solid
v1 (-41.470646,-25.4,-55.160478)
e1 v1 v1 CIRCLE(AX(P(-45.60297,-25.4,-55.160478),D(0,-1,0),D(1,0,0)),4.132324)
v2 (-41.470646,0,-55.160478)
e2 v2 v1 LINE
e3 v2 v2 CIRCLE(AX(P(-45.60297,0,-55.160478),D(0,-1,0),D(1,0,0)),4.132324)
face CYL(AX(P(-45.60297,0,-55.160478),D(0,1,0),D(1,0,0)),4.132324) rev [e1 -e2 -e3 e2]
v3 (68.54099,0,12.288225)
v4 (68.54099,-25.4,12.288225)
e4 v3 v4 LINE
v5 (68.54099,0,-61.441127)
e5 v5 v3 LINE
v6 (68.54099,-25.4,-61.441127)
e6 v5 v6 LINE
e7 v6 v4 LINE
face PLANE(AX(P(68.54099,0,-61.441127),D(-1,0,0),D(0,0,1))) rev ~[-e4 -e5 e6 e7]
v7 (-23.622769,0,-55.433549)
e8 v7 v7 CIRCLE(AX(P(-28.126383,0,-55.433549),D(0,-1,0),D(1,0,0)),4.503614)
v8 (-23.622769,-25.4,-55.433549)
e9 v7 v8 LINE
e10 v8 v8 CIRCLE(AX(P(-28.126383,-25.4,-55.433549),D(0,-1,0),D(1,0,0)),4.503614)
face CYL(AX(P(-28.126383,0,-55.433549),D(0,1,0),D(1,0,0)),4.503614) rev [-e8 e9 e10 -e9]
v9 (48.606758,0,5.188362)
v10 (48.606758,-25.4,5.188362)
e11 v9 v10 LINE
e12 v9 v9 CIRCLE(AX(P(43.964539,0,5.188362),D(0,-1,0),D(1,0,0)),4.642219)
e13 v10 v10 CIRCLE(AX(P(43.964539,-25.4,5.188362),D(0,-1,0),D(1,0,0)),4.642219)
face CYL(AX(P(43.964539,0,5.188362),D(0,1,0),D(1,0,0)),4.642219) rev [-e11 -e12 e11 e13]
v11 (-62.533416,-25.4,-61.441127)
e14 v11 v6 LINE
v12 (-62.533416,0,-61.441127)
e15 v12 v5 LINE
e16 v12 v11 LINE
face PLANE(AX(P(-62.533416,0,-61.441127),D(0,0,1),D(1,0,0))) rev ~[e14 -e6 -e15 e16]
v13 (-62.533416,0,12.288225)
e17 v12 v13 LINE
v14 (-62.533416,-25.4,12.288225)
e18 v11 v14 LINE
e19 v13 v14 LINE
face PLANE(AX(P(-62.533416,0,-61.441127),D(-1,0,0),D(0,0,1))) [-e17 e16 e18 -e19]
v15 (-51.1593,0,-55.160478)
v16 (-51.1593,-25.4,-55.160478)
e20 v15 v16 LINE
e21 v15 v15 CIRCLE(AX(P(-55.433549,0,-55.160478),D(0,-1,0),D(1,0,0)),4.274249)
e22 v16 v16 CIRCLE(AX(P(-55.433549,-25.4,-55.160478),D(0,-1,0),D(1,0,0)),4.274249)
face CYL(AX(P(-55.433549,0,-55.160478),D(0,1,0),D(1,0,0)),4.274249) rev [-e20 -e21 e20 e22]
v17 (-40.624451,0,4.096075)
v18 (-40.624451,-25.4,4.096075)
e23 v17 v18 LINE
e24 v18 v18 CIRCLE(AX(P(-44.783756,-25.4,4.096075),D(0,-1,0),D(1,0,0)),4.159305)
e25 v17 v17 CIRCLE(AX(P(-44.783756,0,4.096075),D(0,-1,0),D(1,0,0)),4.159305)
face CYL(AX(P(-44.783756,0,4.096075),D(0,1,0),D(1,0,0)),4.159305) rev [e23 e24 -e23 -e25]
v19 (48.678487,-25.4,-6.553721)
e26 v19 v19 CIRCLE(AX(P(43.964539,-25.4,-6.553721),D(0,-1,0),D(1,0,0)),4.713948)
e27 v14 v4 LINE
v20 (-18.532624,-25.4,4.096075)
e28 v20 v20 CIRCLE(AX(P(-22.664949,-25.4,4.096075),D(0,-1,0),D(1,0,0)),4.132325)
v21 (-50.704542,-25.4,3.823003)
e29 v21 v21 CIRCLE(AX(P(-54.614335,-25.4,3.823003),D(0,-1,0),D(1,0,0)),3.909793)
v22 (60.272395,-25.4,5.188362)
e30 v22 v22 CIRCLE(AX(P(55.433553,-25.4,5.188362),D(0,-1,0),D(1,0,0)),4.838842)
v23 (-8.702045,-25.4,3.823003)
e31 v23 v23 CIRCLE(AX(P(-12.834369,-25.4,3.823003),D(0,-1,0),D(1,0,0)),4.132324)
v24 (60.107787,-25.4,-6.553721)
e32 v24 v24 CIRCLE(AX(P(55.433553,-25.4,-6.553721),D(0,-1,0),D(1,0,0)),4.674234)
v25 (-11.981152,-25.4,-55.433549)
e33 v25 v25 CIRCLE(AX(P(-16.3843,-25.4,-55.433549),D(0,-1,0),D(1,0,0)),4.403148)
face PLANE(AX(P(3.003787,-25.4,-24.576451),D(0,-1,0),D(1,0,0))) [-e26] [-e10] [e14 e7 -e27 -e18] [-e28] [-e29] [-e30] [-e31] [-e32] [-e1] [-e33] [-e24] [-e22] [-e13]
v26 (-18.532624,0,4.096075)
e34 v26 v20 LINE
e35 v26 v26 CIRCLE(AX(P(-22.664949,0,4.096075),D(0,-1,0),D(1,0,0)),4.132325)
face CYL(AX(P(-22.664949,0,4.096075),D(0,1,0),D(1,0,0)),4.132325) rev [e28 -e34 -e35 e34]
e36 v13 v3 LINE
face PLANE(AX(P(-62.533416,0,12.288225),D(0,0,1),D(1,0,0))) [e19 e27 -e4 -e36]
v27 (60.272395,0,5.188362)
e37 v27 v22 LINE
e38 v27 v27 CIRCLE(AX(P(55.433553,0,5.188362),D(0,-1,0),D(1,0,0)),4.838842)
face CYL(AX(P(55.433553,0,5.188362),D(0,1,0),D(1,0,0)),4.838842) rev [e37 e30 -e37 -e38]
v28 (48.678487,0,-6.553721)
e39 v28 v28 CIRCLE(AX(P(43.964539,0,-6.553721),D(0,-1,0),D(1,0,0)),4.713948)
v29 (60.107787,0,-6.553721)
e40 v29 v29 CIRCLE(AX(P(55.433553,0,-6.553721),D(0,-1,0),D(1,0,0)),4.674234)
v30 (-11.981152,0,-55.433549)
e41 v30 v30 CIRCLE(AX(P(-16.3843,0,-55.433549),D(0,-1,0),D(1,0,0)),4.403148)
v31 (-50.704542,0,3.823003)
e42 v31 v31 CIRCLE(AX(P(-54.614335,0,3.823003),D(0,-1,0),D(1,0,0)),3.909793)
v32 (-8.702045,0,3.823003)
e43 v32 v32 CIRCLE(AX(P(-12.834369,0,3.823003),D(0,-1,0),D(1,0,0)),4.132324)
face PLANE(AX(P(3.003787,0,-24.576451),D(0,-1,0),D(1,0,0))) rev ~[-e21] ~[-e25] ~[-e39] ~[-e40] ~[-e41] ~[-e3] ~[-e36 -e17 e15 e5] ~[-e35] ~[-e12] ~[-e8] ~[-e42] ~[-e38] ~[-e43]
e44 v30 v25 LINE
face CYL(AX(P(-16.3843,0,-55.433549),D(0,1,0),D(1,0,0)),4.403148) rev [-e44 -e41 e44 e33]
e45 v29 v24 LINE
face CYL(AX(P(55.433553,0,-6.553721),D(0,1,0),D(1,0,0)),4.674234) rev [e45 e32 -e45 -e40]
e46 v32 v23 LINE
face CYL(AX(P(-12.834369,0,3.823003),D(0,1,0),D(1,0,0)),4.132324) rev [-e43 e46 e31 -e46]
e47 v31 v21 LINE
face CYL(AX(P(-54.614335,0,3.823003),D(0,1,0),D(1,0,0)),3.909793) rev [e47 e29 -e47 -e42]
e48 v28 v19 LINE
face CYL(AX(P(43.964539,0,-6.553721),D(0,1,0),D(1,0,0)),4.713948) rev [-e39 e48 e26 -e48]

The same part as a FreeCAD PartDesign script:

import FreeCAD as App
import Part
import Sketcher

V = App.Vector
Q = App.Units.Quantity

doc = App.newDocument("Part")
body = doc.addObject("PartDesign::Body", "Body")

# Sketch on XZ plane
sketch1 = doc.addObject("Sketcher::SketchObject", "Sketch")
body.addObject(sketch1)
sketch1.AttachmentSupport = (doc.XZ_Plane, [""])
sketch1.MapMode = "FlatFace"
sketch1.addGeometry([
    Part.LineSegment(V(-62.533416, 12.288225, 0), V(-62.533416, -61.441127, 0)),  # 0
    Part.LineSegment(V(-62.533416, -61.441127, 0), V(68.54099, -61.441127, 0)),  # 1
    Part.LineSegment(V(68.54099, -61.441127, 0), V(68.54099, 12.288225, 0)),  # 2
    Part.LineSegment(V(68.54099, 12.288225, 0), V(-62.533416, 12.288225, 0)),  # 3
    Part.Circle(V(-55.433549, -55.160478, 0), V(0, 0, 1), 4.274249),  # 4
    Part.Circle(V(-45.60297, -55.160478, 0), V(0, 0, 1), 4.132324),  # 5
    Part.Circle(V(-28.126383, -55.433549, 0), V(0, 0, 1), 4.503614),  # 6
    Part.Circle(V(-16.3843, -55.433549, 0), V(0, 0, 1), 4.403148),  # 7
    Part.Circle(V(-54.614335, 3.823003, 0), V(0, 0, 1), 3.909793),  # 8
    Part.Circle(V(-44.783756, 4.096075, 0), V(0, 0, 1), 4.159305),  # 9
    Part.Circle(V(-22.664949, 4.096075, 0), V(0, 0, 1), 4.132325),  # 10
    Part.Circle(V(-12.834369, 3.823003, 0), V(0, 0, 1), 4.132324),  # 11
    Part.Circle(V(43.964539, -6.553721, 0), V(0, 0, 1), 4.713948),  # 12
    Part.Circle(V(55.433553, -6.553721, 0), V(0, 0, 1), 4.674234),  # 13
    Part.Circle(V(43.964539, 5.188362, 0), V(0, 0, 1), 4.642219),  # 14
    Part.Circle(V(55.433553, 5.188362, 0), V(0, 0, 1), 4.838842),  # 15
], False)
sketch1.addConstraint([
    Sketcher.Constraint("Coincident", 0, 2, 1, 1),
    Sketcher.Constraint("Coincident", 1, 2, 2, 1),
    Sketcher.Constraint("Coincident", 2, 2, 3, 1),
    Sketcher.Constraint("Coincident", 3, 2, 0, 1),
    Sketcher.Constraint("Vertical", 0),
    Sketcher.Constraint("Horizontal", 1),
    Sketcher.Constraint("Vertical", 2),
    Sketcher.Constraint("Horizontal", 3),
    Sketcher.Constraint("Equal", 5, 10),
    Sketcher.Constraint("Equal", 10, 11),
    Sketcher.Constraint("Horizontal", 4, 3, 5, 3),
    Sketcher.Constraint("Horizontal", 6, 3, 7, 3),
    Sketcher.Constraint("Horizontal", 9, 3, 10, 3),
    Sketcher.Constraint("Horizontal", 8, 3, 11, 3),
    Sketcher.Constraint("Horizontal", 12, 3, 13, 3),
    Sketcher.Constraint("Horizontal", 14, 3, 15, 3),
    Sketcher.Constraint("Vertical", 12, 3, 14, 3),
    Sketcher.Constraint("Vertical", 13, 3, 15, 3),
    Sketcher.Constraint("Diameter", 9, 8.31861),
    Sketcher.Constraint("Diameter", 10, 8.26465),
    Sketcher.Constraint("Diameter", 4, 8.548498),
    Sketcher.Constraint("Diameter", 6, 9.007228),
    Sketcher.Constraint("Diameter", 7, 8.806296),
    Sketcher.Constraint("Diameter", 8, 7.819586),
    Sketcher.Constraint("Diameter", 12, 9.427896),
    Sketcher.Constraint("Diameter", 13, 9.348468),
    Sketcher.Constraint("Diameter", 14, 9.284438),
    Sketcher.Constraint("Diameter", 15, 9.677684),
    Sketcher.Constraint("DistanceX", 7, 3, -1, 1, 16.3843),
    Sketcher.Constraint("DistanceX", 10, 3, 13, 3, 78.098502),
    Sketcher.Constraint("DistanceX", 1, 1, 1, 2, 131.074406),
    Sketcher.Constraint("DistanceY", 0, 2, 0, 1, 73.729352),
    Sketcher.Constraint("DistanceX", 4, 3, -1, 1, 55.433549),
    Sketcher.Constraint("DistanceX", 5, 3, -1, 1, 45.60297),
    Sketcher.Constraint("DistanceY", 6, 3, -1, 1, 55.433549),
    Sketcher.Constraint("DistanceX", 10, 3, -1, 1, 22.664949),
    Sketcher.Constraint("DistanceX", 11, 3, -1, 1, 12.834369),
    Sketcher.Constraint("DistanceX", -1, 1, 12, 3, 43.964539),
    Sketcher.Constraint("DistanceY", 12, 3, -1, 1, 6.553721),
    Sketcher.Constraint("DistanceY", -1, 1, 14, 3, 5.188362),
    Sketcher.Constraint("DistanceX", -1, 1, 1, 2, 68.54099),
    Sketcher.Constraint("DistanceY", 6, 3, 5, 3, 0.273071),
    Sketcher.Constraint("DistanceY", 4, 3, 8, 3, 58.983481),
    Sketcher.Constraint("DistanceX", 8, 3, 6, 3, 26.487952),
    Sketcher.Constraint("DistanceX", 8, 3, 9, 3, 9.830579),
    Sketcher.Constraint("DistanceY", 0, 2, 4, 3, 6.280649),
    Sketcher.Constraint("DistanceX", 0, 2, 8, 3, 7.919081),
    Sketcher.Constraint("DistanceY", 9, 3, 3, 2, 8.19215),
])
pad1 = doc.addObject("PartDesign::Pad", "Pad")
body.addObject(pad1)
pad1.Profile = sketch1
pad1.Length = Q("1 in")

doc.recompute()
